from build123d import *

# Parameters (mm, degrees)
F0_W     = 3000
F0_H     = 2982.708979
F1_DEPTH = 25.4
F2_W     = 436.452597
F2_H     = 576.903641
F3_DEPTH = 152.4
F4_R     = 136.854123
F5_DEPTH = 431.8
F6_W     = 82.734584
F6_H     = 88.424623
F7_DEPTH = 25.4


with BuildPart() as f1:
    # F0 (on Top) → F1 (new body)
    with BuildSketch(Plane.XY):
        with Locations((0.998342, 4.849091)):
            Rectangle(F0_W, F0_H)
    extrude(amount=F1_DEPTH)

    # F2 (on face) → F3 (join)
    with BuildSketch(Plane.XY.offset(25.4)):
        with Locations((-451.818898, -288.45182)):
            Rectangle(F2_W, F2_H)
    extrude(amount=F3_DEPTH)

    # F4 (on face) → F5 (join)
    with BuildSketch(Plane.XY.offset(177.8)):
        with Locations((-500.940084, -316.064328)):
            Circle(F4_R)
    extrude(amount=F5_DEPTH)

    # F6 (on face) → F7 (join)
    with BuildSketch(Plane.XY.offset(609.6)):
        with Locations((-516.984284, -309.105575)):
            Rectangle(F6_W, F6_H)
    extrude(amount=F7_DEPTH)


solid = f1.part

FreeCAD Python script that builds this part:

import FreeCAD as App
import Part
import Sketcher
Q = App.Units.Quantity


def add_polygon(sketch, points):
    """Adds a closed chain of lines whose ends are joined by coincident constraints."""
    first, n = sketch.GeometryCount, len(points)
    for a, b in zip(points, points[1:] + points[:1]):
        sketch.addGeometry(Part.LineSegment(App.Vector(*a, 0), App.Vector(*b, 0)), False)
    for i in range(n):
        sketch.addConstraint(Sketcher.Constraint("Coincident", first + i, 2, first + (i + 1) % n, 1))

doc = App.newDocument("Part")
body = doc.addObject("PartDesign::Body", "Body")

sketch1 = body.newObject("Sketcher::SketchObject", "Sketch")
sketch1.AttachmentSupport = (doc.getObject("XY_Plane"), [""])
sketch1.MapMode = "FlatFace"
add_polygon(sketch1, [(-1499.001658, 1496.203581), (-1499.001658, -1486.505398), (1500.998342, -1486.505398), (1500.998342, 1496.203581)])
sketch1.addConstraint(Sketcher.Constraint("Vertical", 0))
sketch1.addConstraint(Sketcher.Constraint("Horizontal", 1))
sketch1.addConstraint(Sketcher.Constraint("Vertical", 2))
sketch1.addConstraint(Sketcher.Constraint("Horizontal", 3))
sketch1.addConstraint(Sketcher.Constraint("DistanceX", 1, 1, 1, 2, 3000.0))
sketch1.addConstraint(Sketcher.Constraint("DistanceY", 0, 2, 0, 1, 2982.708979))
sketch1.addConstraint(Sketcher.Constraint("DistanceY", 0, 2, -1, 1, 1486.505398))
sketch1.addConstraint(Sketcher.Constraint("DistanceX", 0, 2, -1, 1, 1499.001658))
pad1 = body.newObject("PartDesign::Pad", "Pad")
pad1.Profile = sketch1
pad1.Length = Q("1 in")

sketch2 = body.newObject("Sketcher::SketchObject", "Sketch001")
sketch2.AttachmentSupport = (doc.getObject("XY_Plane"), [""])
sketch2.MapMode = "FlatFace"
sketch2.AttachmentOffset = App.Placement(App.Vector(0, 0, 1 * 25.4), App.Rotation())
add_polygon(sketch2, [(-670.045196, 0), (-670.045196, -576.903641), (-233.5926, -576.903641), (-233.5926, 0)])
sketch2.addConstraint(Sketcher.Constraint("Vertical", 0))
sketch2.addConstraint(Sketcher.Constraint("Horizontal", 1))
sketch2.addConstraint(Sketcher.Constraint("Vertical", 2))
sketch2.addConstraint(Sketcher.Constraint("Horizontal", 3))
sketch2.addConstraint(Sketcher.Constraint("PointOnObject", 2, 2, -1))
sketch2.addConstraint(Sketcher.Constraint("DistanceY", 0, 2, 0, 1, 576.903641))
sketch2.addConstraint(Sketcher.Constraint("DistanceX", 1, 2, -1, 1, 233.5926))
sketch2.addConstraint(Sketcher.Constraint("DistanceX", 1, 1, 1, 2, 436.452597))
pad2 = body.newObject("PartDesign::Pad", "Pad001")
pad2.Profile = sketch2
pad2.Length = Q("6 in")

sketch3 = body.newObject("Sketcher::SketchObject", "Sketch002")
sketch3.AttachmentSupport = (doc.getObject("XY_Plane"), [""])
sketch3.MapMode = "FlatFace"
sketch3.AttachmentOffset = App.Placement(App.Vector(0, 0, 7 * 25.4), App.Rotation())
sketch3.addGeometry(Part.Circle(App.Vector(-500.940084, -316.064328, 0), App.Vector(0, 0, 1), 136.854123), False)
sketch3.addConstraint(Sketcher.Constraint("Diameter", 0, 273.708246))
sketch3.addConstraint(Sketcher.Constraint("DistanceY", 0, 3, -1, 1, 316.064328))
sketch3.addConstraint(Sketcher.Constraint("DistanceX", 0, 3, -1, 1, 500.940084))
pad3 = body.newObject("PartDesign::Pad", "Pad002")
pad3.Profile = sketch3
pad3.Length = Q("17 in")

sketch4 = body.newObject("Sketcher::SketchObject", "Sketch003")
sketch4.AttachmentSupport = (doc.getObject("XY_Plane"), [""])
sketch4.MapMode = "FlatFace"
sketch4.AttachmentOffset = App.Placement(App.Vector(0, 0, 24 * 25.4), App.Rotation())
add_polygon(sketch4, [(-558.351576, -264.893263), (-558.351576, -353.317886), (-475.616992, -353.317886), (-475.616992, -264.893263)])
sketch4.addConstraint(Sketcher.Constraint("Vertical", 0))
sketch4.addConstraint(Sketcher.Constraint("Horizontal", 1))
sketch4.addConstraint(Sketcher.Constraint("Vertical", 2))
sketch4.addConstraint(Sketcher.Constraint("Horizontal", 3))
sketch4.addConstraint(Sketcher.Constraint("DistanceX", 1, 1, 1, 2, 82.734584))
sketch4.addConstraint(Sketcher.Constraint("DistanceY", 0, 2, 0, 1, 88.424623))
sketch4.addConstraint(Sketcher.Constraint("DistanceX", 1, 2, -1, 1, 475.616992))
sketch4.addConstraint(Sketcher.Constraint("DistanceY", 0, 2, -1, 1, 353.317886))
pad4 = body.newObject("PartDesign::Pad", "Pad003")
pad4.Profile = sketch4
pad4.Length = Q("1 in")

doc.recompute()
